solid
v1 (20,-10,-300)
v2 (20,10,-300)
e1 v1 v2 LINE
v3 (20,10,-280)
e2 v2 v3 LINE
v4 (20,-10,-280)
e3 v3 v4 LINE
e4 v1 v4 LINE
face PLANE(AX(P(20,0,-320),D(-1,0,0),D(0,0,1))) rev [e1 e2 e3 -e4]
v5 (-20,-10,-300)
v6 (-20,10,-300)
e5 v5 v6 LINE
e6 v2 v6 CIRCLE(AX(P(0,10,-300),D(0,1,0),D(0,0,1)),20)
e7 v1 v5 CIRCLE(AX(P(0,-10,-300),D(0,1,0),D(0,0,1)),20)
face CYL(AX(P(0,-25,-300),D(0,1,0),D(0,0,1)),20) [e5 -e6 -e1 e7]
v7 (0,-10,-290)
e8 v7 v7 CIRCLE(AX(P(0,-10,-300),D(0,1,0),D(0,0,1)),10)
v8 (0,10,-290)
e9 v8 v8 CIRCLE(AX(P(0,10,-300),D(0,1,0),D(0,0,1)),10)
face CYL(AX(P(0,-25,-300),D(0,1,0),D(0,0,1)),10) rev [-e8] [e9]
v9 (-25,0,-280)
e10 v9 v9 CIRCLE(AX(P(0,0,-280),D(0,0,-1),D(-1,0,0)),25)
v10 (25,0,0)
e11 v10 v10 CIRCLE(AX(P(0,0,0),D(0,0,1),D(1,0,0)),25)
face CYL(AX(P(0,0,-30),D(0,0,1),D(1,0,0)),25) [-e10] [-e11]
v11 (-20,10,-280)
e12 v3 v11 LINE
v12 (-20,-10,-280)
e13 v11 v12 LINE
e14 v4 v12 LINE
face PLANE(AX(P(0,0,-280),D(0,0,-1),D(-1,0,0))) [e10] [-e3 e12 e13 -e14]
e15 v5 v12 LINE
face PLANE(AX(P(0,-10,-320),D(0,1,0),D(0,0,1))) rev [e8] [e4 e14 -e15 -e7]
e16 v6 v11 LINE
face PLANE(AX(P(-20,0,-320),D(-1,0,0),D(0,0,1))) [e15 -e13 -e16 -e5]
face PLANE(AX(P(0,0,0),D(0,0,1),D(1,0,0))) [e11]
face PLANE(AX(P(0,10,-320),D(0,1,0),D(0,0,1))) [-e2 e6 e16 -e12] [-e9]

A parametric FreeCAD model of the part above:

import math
import FreeCAD as App
import Part
import Sketcher

V = App.Vector
Q = App.Units.Quantity


def add_polygon(sketch, points):
    """Adds a closed chain of lines whose ends are joined by coincident constraints."""
    first, n = sketch.GeometryCount, len(points)
    for a, b in zip(points, points[1:] + points[:1]):
        sketch.addGeometry(Part.LineSegment(App.Vector(*a, 0), App.Vector(*b, 0)), False)
    for i in range(n):
        sketch.addConstraint(Sketcher.Constraint("Coincident", first + i, 2, first + (i + 1) % n, 1))

doc = App.newDocument("Part")
body = doc.addObject("PartDesign::Body", "Body")

# Sketch on XY plane
sketch1 = body.newObject("Sketcher::SketchObject", "Sketch")
sketch1.AttachmentSupport = (doc.getObject("XY_Plane"), [""])
sketch1.MapMode = "FlatFace"
sketch1.addGeometry(Part.Circle(V(0, 0, 0), V(0, 0, 1), 25), False)
sketch1.addConstraint([
    Sketcher.Constraint("Coincident", 0, 3, -1, 1),
    Sketcher.Constraint("Diameter", 0, Q("50 mm")),
])
pad1 = body.newObject("PartDesign::Pad", "Pad")
pad1.Profile = sketch1
pad1.Length = 30
pad1.Reversed = True

# Sketch on XY plane
sketch2 = body.newObject("Sketcher::SketchObject", "Sketch001")
sketch2.AttachmentSupport = (doc.getObject("XY_Plane"), [""])
sketch2.MapMode = "FlatFace"
sketch2.AttachmentOffset = App.Placement(V(0, 0, -30), App.Rotation())
sketch2.addGeometry(Part.Circle(V(0, 0, 0), V(0, 0, 1), 25), False)
sketch2.addConstraint([
    Sketcher.Constraint("Coincident", 0, 3, -1, 1),
    Sketcher.Constraint("Diameter", 0, Q("50 mm")),
])
pad2 = body.newObject("PartDesign::Pad", "Pad001")
pad2.Profile = sketch2
pad2.Length = 250
pad2.Reversed = True

# Sketch on XY plane
sketch3 = body.newObject("Sketcher::SketchObject", "Sketch002")
sketch3.AttachmentSupport = (doc.getObject("XY_Plane"), [""])
sketch3.MapMode = "FlatFace"
sketch3.AttachmentOffset = App.Placement(V(0, 0, -280), App.Rotation())
add_polygon(sketch3, [(20, -10), (-20, -10), (-20, 10), (20, 10)])  # lines 0-3
sketch3.addConstraint([
    Sketcher.Constraint("Horizontal", 0),
    Sketcher.Constraint("Vertical", 1),
    Sketcher.Constraint("Horizontal", 2),
    Sketcher.Constraint("Vertical", 3),
    Sketcher.Constraint("Symmetric", 0, 2, 2, 2, -1, 1),
    Sketcher.Constraint("DistanceX", 0, 2, 0, 1, Q("40 mm")),
    Sketcher.Constraint("DistanceY", 1, 1, 1, 2, Q("20 mm")),
])
pad3 = body.newObject("PartDesign::Pad", "Pad002")
pad3.Profile = sketch3
pad3.Length = 40
pad3.Reversed = True

# Sketch on XZ plane
sketch4 = body.newObject("Sketcher::SketchObject", "Sketch003")
sketch4.AttachmentSupport = (doc.getObject("XZ_Plane"), [""])
sketch4.MapMode = "FlatFace"
sketch4.AttachmentOffset = App.Placement(V(0, 0, -10), App.Rotation())
sketch4.addGeometry([
    Part.ArcOfCircle(Part.Circle(V(0, -300, 0), V(0, 0, 1), 20), math.radians(180), math.radians(270)),  # 0
    Part.LineSegment(V(0, -320, 0), V(-20, -320, 0)),  # 1
    Part.LineSegment(V(-20, -320, 0), V(-20, -300, 0)),  # 2
    Part.LineSegment(V(20, -320, 0), V(0, -320, 0)),  # 3
    Part.ArcOfCircle(Part.Circle(V(0, -300, 0), V(0, 0, 1), 20), math.radians(-90), math.radians(0)),  # 4
    Part.LineSegment(V(20, -300, 0), V(20, -320, 0)),  # 5
], False)
sketch4.addConstraint([
    Sketcher.Constraint("Tangent", 0, 2, 1, 1),
    Sketcher.Constraint("Coincident", 1, 2, 2, 1),
    Sketcher.Constraint("Tangent", 2, 2, 0, 1),
    Sketcher.Constraint("Tangent", 3, 2, 4, 1),
    Sketcher.Constraint("Tangent", 4, 2, 5, 1),
    Sketcher.Constraint("Coincident", 5, 2, 3, 1),
    Sketcher.Constraint("Horizontal", 1),
    Sketcher.Constraint("Vertical", 2),
    Sketcher.Constraint("Horizontal", 3),
    Sketcher.Constraint("Vertical", 5),
    Sketcher.Constraint("Coincident", 4, 3, 0, 3),
    Sketcher.Constraint("Equal", 0, 4),
    Sketcher.Constraint("PointOnObject", 0, 3, -2),
    Sketcher.Constraint("Radius", 0, Q("20 mm")),
    Sketcher.Constraint("DistanceY", 0, 3, -1, 1, Q("300 mm")),
])
pocket1 = body.newObject("PartDesign::Pocket", "Pocket")
pocket1.Profile = sketch4
pocket1.Type = "ThroughAll"
pocket1.Midplane = True

# Sketch on XZ plane
sketch5 = body.newObject("Sketcher::SketchObject", "Sketch004")
sketch5.AttachmentSupport = (doc.getObject("XZ_Plane"), [""])
sketch5.MapMode = "FlatFace"
sketch5.AttachmentOffset = App.Placement(V(0, 0, -10), App.Rotation())
sketch5.addGeometry(Part.Circle(V(0, -300, 0), V(0, 0, 1), 10), False)
sketch5.addConstraint([
    Sketcher.Constraint("PointOnObject", 0, 3, -2),
    Sketcher.Constraint("Diameter", 0, Q("20 mm")),
    Sketcher.Constraint("DistanceY", 0, 3, -1, 1, Q("300 mm")),
])
pocket2 = body.newObject("PartDesign::Pocket", "Pocket001")
pocket2.Profile = sketch5
pocket2.Type = "ThroughAll"
pocket2.Midplane = True

doc.recompute()
